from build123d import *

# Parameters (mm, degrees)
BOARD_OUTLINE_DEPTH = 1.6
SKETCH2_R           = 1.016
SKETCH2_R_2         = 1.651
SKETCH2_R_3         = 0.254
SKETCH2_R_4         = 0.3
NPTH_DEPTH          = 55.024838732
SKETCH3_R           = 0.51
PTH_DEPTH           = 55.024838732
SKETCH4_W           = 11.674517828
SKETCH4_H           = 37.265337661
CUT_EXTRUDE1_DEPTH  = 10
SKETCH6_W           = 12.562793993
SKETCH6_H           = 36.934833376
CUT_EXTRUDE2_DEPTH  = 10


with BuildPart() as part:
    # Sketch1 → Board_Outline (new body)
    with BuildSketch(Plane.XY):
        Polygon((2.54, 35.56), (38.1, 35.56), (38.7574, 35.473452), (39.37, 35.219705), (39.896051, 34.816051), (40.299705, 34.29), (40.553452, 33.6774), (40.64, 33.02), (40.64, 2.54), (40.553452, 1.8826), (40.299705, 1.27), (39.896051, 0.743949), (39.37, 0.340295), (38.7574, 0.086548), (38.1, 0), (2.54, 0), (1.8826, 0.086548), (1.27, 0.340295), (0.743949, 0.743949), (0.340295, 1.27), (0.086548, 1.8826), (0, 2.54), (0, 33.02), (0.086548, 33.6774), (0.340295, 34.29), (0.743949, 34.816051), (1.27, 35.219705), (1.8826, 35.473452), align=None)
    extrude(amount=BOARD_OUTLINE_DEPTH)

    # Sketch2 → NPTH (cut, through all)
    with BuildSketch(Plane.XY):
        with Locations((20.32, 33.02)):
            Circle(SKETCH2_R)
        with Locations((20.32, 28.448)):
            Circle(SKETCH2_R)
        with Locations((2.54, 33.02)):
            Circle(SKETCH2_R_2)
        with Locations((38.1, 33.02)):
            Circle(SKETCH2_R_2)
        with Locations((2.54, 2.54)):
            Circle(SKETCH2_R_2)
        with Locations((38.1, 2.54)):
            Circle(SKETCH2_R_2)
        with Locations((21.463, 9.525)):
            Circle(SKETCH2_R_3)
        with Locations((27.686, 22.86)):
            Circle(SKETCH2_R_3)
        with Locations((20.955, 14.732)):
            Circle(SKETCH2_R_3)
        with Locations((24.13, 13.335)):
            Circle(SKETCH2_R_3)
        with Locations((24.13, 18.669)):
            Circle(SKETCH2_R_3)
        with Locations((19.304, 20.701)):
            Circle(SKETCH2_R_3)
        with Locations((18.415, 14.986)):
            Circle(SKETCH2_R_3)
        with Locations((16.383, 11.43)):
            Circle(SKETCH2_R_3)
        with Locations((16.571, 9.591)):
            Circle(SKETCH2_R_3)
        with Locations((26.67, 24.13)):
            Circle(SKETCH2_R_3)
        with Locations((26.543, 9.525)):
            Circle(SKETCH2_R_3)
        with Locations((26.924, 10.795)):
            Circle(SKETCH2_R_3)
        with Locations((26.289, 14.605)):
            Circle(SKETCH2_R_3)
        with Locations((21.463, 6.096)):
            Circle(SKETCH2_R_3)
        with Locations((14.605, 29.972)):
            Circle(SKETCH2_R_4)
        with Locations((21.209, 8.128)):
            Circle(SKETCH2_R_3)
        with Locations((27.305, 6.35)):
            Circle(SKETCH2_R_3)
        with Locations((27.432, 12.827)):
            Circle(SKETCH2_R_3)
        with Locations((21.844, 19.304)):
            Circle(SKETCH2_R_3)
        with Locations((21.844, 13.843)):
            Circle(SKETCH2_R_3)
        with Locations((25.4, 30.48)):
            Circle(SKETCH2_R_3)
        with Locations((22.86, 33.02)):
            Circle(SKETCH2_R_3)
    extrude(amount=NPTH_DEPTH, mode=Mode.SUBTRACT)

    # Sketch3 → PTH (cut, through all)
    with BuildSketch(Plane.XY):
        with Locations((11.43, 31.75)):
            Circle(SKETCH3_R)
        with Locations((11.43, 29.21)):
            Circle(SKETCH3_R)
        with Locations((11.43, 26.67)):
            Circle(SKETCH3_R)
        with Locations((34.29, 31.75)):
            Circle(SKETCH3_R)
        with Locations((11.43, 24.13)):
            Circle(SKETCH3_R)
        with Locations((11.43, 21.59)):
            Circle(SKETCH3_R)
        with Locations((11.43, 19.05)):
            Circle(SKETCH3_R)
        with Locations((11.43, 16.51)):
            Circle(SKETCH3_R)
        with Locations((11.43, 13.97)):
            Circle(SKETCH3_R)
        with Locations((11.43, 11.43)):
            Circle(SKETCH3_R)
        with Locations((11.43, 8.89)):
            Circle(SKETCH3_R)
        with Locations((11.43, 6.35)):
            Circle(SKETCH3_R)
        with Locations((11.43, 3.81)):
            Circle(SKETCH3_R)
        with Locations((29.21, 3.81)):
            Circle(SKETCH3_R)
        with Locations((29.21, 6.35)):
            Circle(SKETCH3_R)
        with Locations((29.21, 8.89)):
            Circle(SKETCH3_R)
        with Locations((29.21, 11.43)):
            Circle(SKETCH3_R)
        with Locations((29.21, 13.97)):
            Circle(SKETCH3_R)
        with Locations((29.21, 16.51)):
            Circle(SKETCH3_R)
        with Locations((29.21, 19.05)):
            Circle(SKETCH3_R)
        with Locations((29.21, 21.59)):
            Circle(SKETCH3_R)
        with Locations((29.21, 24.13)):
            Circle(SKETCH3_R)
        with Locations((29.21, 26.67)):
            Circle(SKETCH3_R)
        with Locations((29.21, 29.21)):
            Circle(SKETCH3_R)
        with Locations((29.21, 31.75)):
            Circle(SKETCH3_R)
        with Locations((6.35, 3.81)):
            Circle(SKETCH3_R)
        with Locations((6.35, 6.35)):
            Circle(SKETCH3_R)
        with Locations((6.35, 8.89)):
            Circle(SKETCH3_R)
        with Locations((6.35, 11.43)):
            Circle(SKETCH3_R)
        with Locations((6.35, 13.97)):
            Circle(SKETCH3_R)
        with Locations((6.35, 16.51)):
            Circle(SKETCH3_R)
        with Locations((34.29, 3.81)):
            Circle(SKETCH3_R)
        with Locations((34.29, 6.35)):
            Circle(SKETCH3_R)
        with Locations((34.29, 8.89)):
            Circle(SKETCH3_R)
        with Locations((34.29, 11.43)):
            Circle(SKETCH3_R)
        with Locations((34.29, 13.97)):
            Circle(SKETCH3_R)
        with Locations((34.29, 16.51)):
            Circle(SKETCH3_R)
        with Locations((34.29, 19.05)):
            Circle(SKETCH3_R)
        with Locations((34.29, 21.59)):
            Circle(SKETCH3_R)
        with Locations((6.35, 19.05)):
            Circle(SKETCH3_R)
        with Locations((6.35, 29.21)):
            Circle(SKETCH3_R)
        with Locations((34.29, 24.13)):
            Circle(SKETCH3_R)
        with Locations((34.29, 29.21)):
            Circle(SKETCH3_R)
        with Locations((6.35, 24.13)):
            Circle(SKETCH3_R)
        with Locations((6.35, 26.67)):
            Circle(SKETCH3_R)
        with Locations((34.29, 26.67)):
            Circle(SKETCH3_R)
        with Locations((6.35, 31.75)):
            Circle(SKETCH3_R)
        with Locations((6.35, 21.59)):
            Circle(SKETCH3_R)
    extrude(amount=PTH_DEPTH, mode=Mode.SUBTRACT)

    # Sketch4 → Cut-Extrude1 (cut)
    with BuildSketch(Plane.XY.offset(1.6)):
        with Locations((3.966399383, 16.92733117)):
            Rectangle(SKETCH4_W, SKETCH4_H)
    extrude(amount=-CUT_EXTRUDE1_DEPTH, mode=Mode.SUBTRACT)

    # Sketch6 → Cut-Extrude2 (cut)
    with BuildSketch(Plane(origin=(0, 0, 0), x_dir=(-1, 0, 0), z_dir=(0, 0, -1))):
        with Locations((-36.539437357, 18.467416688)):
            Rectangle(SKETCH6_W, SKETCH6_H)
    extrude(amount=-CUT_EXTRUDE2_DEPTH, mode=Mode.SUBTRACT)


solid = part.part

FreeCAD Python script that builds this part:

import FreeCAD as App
import Part
import Sketcher

V = App.Vector
Q = App.Units.Quantity

doc = App.newDocument("Part")
params = doc.addObject("Spreadsheet::Sheet", "Params")
for row, (alias, value) in enumerate([
    ("sketch1_width", "1.4 in"),
    ("sketch1_width2", "1.4 in"),
    ("sketch1_height", "1.2 in"),
    ("sketch1_height2", "1.2 in"),
    ("pad1_length", "1.6 mm"),
    ("sketch2_diameter", "0.08 in"),
    ("sketch2_diameter2", "0.13 in"),
    ("sketch2_diameter3", "0.02 in"),
    ("pocket3_length", "10 mm"),
    ("pocket4_length", "10 mm"),
], start=1):
    params.set(f"A{row}", alias)
    params.set(f"B{row}", "=" + value)
    params.setAlias(f"B{row}", alias)

body = doc.addObject("PartDesign::Body", "Body")

sketch1 = body.newObject("Sketcher::SketchObject", "Sketch")
sketch1.AttachmentSupport = (doc.getObject("XY_Plane"), [""])
sketch1.MapMode = "FlatFace"
sketch1.addGeometry([
    Part.LineSegment(V(38.1, 35.56, 0), V(2.54, 35.56, 0)),
    Part.LineSegment(V(2.54, 35.56, 0), V(1.8826, 35.473452, 0)),
    Part.LineSegment(V(1.8826, 35.473452, 0), V(1.27, 35.219705, 0)),
    Part.LineSegment(V(1.27, 35.219705, 0), V(0.743949, 34.816051, 0)),
    Part.LineSegment(V(0.743949, 34.816051, 0), V(0.340295, 34.29, 0)),
    Part.LineSegment(V(0.340295, 34.29, 0), V(0.086548, 33.6774, 0)),
    Part.LineSegment(V(0.086548, 33.6774, 0), V(0, 33.02, 0)),
    Part.LineSegment(V(0, 33.02, 0), V(0, 2.54, 0)),
    Part.LineSegment(V(0, 2.54, 0), V(0.086548, 1.8826, 0)),
    Part.LineSegment(V(0.086548, 1.8826, 0), V(0.340295, 1.27, 0)),
    Part.LineSegment(V(0.340295, 1.27, 0), V(0.743949, 0.743949, 0)),
    Part.LineSegment(V(0.743949, 0.743949, 0), V(1.27, 0.340295, 0)),
    Part.LineSegment(V(1.27, 0.340295, 0), V(1.8826, 0.086548, 0)),
    Part.LineSegment(V(1.8826, 0.086548, 0), V(2.54, 0, 0)),
    Part.LineSegment(V(2.54, 0, 0), V(38.1, 0, 0)),
    Part.LineSegment(V(38.1, 0, 0), V(38.7574, 0.086548, 0)),
    Part.LineSegment(V(38.7574, 0.086548, 0), V(39.37, 0.340295, 0)),
    Part.LineSegment(V(39.37, 0.340295, 0), V(39.896051, 0.743949, 0)),
    Part.LineSegment(V(39.896051, 0.743949, 0), V(40.299705, 1.27, 0)),
    Part.LineSegment(V(40.299705, 1.27, 0), V(40.553452, 1.8826, 0)),
    Part.LineSegment(V(40.553452, 1.8826, 0), V(40.64, 2.54, 0)),
    Part.LineSegment(V(40.64, 2.54, 0), V(40.64, 33.02, 0)),
    Part.LineSegment(V(40.64, 33.02, 0), V(40.553452, 33.6774, 0)),
    Part.LineSegment(V(40.553452, 33.6774, 0), V(40.299705, 34.29, 0)),
    Part.LineSegment(V(40.299705, 34.29, 0), V(39.896051, 34.816051, 0)),
    Part.LineSegment(V(39.896051, 34.816051, 0), V(39.37, 35.219705, 0)),
    Part.LineSegment(V(39.37, 35.219705, 0), V(38.7574, 35.473452, 0)),
    Part.LineSegment(V(38.7574, 35.473452, 0), V(38.1, 35.56, 0)),
], False)
sketch1.addConstraint([
    Sketcher.Constraint("Coincident", 0, 2, 1, 1),
    Sketcher.Constraint("Coincident", 1, 2, 2, 1),
    Sketcher.Constraint("Coincident", 2, 2, 3, 1),
    Sketcher.Constraint("Coincident", 3, 2, 4, 1),
    Sketcher.Constraint("Coincident", 4, 2, 5, 1),
    Sketcher.Constraint("Coincident", 5, 2, 6, 1),
    Sketcher.Constraint("Coincident", 6, 2, 7, 1),
    Sketcher.Constraint("Coincident", 7, 2, 8, 1),
    Sketcher.Constraint("Coincident", 8, 2, 9, 1),
    Sketcher.Constraint("Coincident", 9, 2, 10, 1),
    Sketcher.Constraint("Coincident", 10, 2, 11, 1),
    Sketcher.Constraint("Coincident", 11, 2, 12, 1),
    Sketcher.Constraint("Coincident", 12, 2, 13, 1),
    Sketcher.Constraint("Coincident", 13, 2, 14, 1),
    Sketcher.Constraint("Coincident", 14, 2, 15, 1),
    Sketcher.Constraint("Coincident", 15, 2, 16, 1),
    Sketcher.Constraint("Coincident", 16, 2, 17, 1),
    Sketcher.Constraint("Coincident", 17, 2, 18, 1),
    Sketcher.Constraint("Coincident", 18, 2, 19, 1),
    Sketcher.Constraint("Coincident", 19, 2, 20, 1),
    Sketcher.Constraint("Coincident", 20, 2, 21, 1),
    Sketcher.Constraint("Coincident", 21, 2, 22, 1),
    Sketcher.Constraint("Coincident", 22, 2, 23, 1),
    Sketcher.Constraint("Coincident", 23, 2, 24, 1),
    Sketcher.Constraint("Coincident", 24, 2, 25, 1),
    Sketcher.Constraint("Coincident", 25, 2, 26, 1),
    Sketcher.Constraint("Coincident", 26, 2, 27, 1),
    Sketcher.Constraint("Coincident", 27, 2, 0, 1),
    Sketcher.Constraint("Horizontal", 0),
    Sketcher.Constraint("Vertical", 7),
    Sketcher.Constraint("Horizontal", 14),
    Sketcher.Constraint("Vertical", 21),
    Sketcher.Constraint("PointOnObject", 6, 2, -2),
    Sketcher.Constraint("PointOnObject", 13, 2, -1),
    Sketcher.Constraint("DistanceX", 0, 2, 0, 1, Q("1.4 in")),
    Sketcher.Constraint("DistanceX", 14, 1, 14, 2, Q("1.4 in")),
    Sketcher.Constraint("DistanceY", 7, 2, 7, 1, Q("1.2 in")),
    Sketcher.Constraint("DistanceY", 21, 1, 21, 2, Q("1.2 in")),
    Sketcher.Constraint("DistanceX", -1, 1, 0, 2, Q("0.1 in")),
    Sketcher.Constraint("DistanceY", -1, 1, 0, 2, Q("1.4 in")),
    Sketcher.Constraint("DistanceY", -1, 1, 6, 2, Q("1.3 in")),
    Sketcher.Constraint("DistanceX", -1, 1, 13, 2, Q("0.1 in")),
    Sketcher.Constraint("DistanceX", -1, 1, 20, 2, Q("1.6 in")),
    Sketcher.Constraint("DistanceY", -1, 1, 20, 2, Q("0.1 in")),
    Sketcher.Constraint("DistanceY", 9, 2, 4, 2, Q("1.3 in")),
    Sketcher.Constraint("DistanceX", 11, 2, 16, 2, Q("1.5 in")),
    Sketcher.Constraint("DistanceY", 18, 2, 23, 2, Q("1.3 in")),
    Sketcher.Constraint("DistanceX", -1, 1, 2, 2, Q("0.05 in")),
    Sketcher.Constraint("DistanceY", -1, 1, 4, 2, Q("1.35 in")),
    Sketcher.Constraint("DistanceX", -1, 1, 11, 2, Q("0.05 in")),
    Sketcher.Constraint("DistanceY", -1, 1, 18, 2, Q("0.05 in")),
    Sketcher.Constraint("DistanceX", -1, 1, 25, 2, Q("1.55 in")),
    Sketcher.Constraint("DistanceX", -1, 1, 1, 2, 1.8826),
    Sketcher.Constraint("DistanceY", -1, 1, 5, 2, 33.6774),
    Sketcher.Constraint("DistanceY", -1, 1, 8, 2, 1.8826),
    Sketcher.Constraint("DistanceX", -1, 1, 12, 2, 1.8826),
    Sketcher.Constraint("DistanceX", -1, 1, 15, 2, 38.7574),
    Sketcher.Constraint("DistanceY", -1, 1, 19, 2, 1.8826),
    Sketcher.Constraint("DistanceY", -1, 1, 22, 2, 33.6774),
    Sketcher.Constraint("DistanceX", -1, 1, 26, 2, 38.7574),
    Sketcher.Constraint("DistanceY", 3, 2, 1, 2, 0.657401),
    Sketcher.Constraint("DistanceX", 5, 2, 3, 2, 0.657401),
    Sketcher.Constraint("DistanceX", 8, 2, 3, 2, 0.657401),
    Sketcher.Constraint("DistanceX", 8, 2, 10, 2, 0.657401),
    Sketcher.Constraint("DistanceY", 12, 2, 10, 2, 0.657401),
    Sketcher.Constraint("DistanceY", 15, 2, 10, 2, 0.657401),
    Sketcher.Constraint("DistanceY", 15, 2, 17, 2, 0.657401),
    Sketcher.Constraint("DistanceX", 17, 2, 19, 2, 0.657401),
    Sketcher.Constraint("DistanceX", 17, 2, 22, 2, 0.657401),
    Sketcher.Constraint("DistanceX", 24, 2, 22, 2, 0.657401),
    Sketcher.Constraint("DistanceY", 24, 2, 26, 2, 0.657401),
    Sketcher.Constraint("DistanceX", -1, 1, 3, 2, 0.743949),
    Sketcher.Constraint("DistanceY", -1, 1, 3, 2, 34.816051),
    Sketcher.Constraint("DistanceY", -1, 1, 10, 2, 0.743949),
    Sketcher.Constraint("DistanceX", -1, 1, 17, 2, 39.896051),
    Sketcher.Constraint("DistanceY", -1, 1, 24, 2, 34.816051),
    Sketcher.Constraint("Distance", 2, 0.663073),
    Sketcher.Constraint("Distance", 4, 0.663073),
    Sketcher.Constraint("Distance", 9, 0.663073),
    Sketcher.Constraint("Distance", 11, 0.663073),
    Sketcher.Constraint("Distance", 16, 0.663073),
    Sketcher.Constraint("Distance", 18, 0.663073),
    Sketcher.Constraint("Distance", 23, 0.663073),
    Sketcher.Constraint("Distance", 25, 0.663073),
])
sketch1.setExpression("Constraints[34]", "Params.sketch1_width")
sketch1.setExpression("Constraints[35]", "Params.sketch1_width2")
sketch1.setExpression("Constraints[36]", "Params.sketch1_height")
sketch1.setExpression("Constraints[37]", "Params.sketch1_height2")
pad1 = body.newObject("PartDesign::Pad", "Pad")
pad1.Profile = sketch1
pad1.setExpression("Length", "Params.pad1_length")

sketch2 = body.newObject("Sketcher::SketchObject", "Sketch001")
sketch2.AttachmentSupport = (doc.getObject("XY_Plane"), [""])
sketch2.MapMode = "FlatFace"
sketch2.addGeometry([
    Part.Circle(V(20.32, 33.02, 0), V(0, 0, 1), 1.02),
    Part.Circle(V(20.32, 28.45, 0), V(0, 0, 1), 1.02),
    Part.Circle(V(2.54, 33.02, 0), V(0, 0, 1), 1.65),
    Part.Circle(V(38.1, 33.02, 0), V(0, 0, 1), 1.65),
    Part.Circle(V(2.54, 2.54, 0), V(0, 0, 1), 1.65),
    Part.Circle(V(38.1, 2.54, 0), V(0, 0, 1), 1.65),
    Part.Circle(V(21.46, 9.53, 0), V(0, 0, 1), 0.25),
    Part.Circle(V(27.69, 22.86, 0), V(0, 0, 1), 0.25),
    Part.Circle(V(20.95, 14.73, 0), V(0, 0, 1), 0.25),
    Part.Circle(V(24.13, 13.34, 0), V(0, 0, 1), 0.25),
    Part.Circle(V(24.13, 18.67, 0), V(0, 0, 1), 0.25),
    Part.Circle(V(19.3, 20.7, 0), V(0, 0, 1), 0.25),
    Part.Circle(V(18.41, 14.99, 0), V(0, 0, 1), 0.25),
    Part.Circle(V(16.38, 11.43, 0), V(0, 0, 1), 0.25),
    Part.Circle(V(16.57, 9.59, 0), V(0, 0, 1), 0.25),
    Part.Circle(V(26.67, 24.13, 0), V(0, 0, 1), 0.25),
    Part.Circle(V(26.54, 9.53, 0), V(0, 0, 1), 0.25),
    Part.Circle(V(26.92, 10.79, 0), V(0, 0, 1), 0.25),
    Part.Circle(V(26.29, 14.61, 0), V(0, 0, 1), 0.25),
    Part.Circle(V(21.46, 6.1, 0), V(0, 0, 1), 0.25),
    Part.Circle(V(14.61, 29.97, 0), V(0, 0, 1), 0.3),
    Part.Circle(V(21.21, 8.13, 0), V(0, 0, 1), 0.25),
    Part.Circle(V(27.3, 6.35, 0), V(0, 0, 1), 0.25),
    Part.Circle(V(27.43, 12.83, 0), V(0, 0, 1), 0.25),
    Part.Circle(V(21.84, 19.3, 0), V(0, 0, 1), 0.25),
    Part.Circle(V(21.84, 13.84, 0), V(0, 0, 1), 0.25),
    Part.Circle(V(25.4, 30.48, 0), V(0, 0, 1), 0.25),
    Part.Circle(V(22.86, 33.02, 0), V(0, 0, 1), 0.25),
], False)
sketch2.addConstraint([
    Sketcher.Constraint("Equal", 0, 1),
    Sketcher.Constraint("Equal", 2, 3),
    Sketcher.Constraint("Equal", 3, 4),
    Sketcher.Constraint("Equal", 4, 5),
    Sketcher.Constraint("Equal", 6, 7),
    Sketcher.Constraint("Equal", 7, 8),
    Sketcher.Constraint("Equal", 8, 9),
    Sketcher.Constraint("Equal", 9, 10),
    Sketcher.Constraint("Equal", 10, 11),
    Sketcher.Constraint("Equal", 11, 12),
    Sketcher.Constraint("Equal", 12, 13),
    Sketcher.Constraint("Equal", 13, 14),
    Sketcher.Constraint("Equal", 14, 15),
    Sketcher.Constraint("Equal", 15, 16),
    Sketcher.Constraint("Equal", 16, 17),
    Sketcher.Constraint("Equal", 17, 18),
    Sketcher.Constraint("Equal", 18, 19),
    Sketcher.Constraint("Equal", 19, 21),
    Sketcher.Constraint("Equal", 21, 22),
    Sketcher.Constraint("Equal", 22, 23),
    Sketcher.Constraint("Equal", 23, 24),
    Sketcher.Constraint("Equal", 24, 25),
    Sketcher.Constraint("Equal", 25, 26),
    Sketcher.Constraint("Equal", 26, 27),
    Sketcher.Constraint("Horizontal", 0, 3, 2, 3),
    Sketcher.Constraint("Horizontal", 2, 3, 3, 3),
    Sketcher.Constraint("Horizontal", 4, 3, 5, 3),
    Sketcher.Constraint("Horizontal", 6, 3, 16, 3),
    Sketcher.Constraint("Horizontal", 3, 3, 27, 3),
    Sketcher.Constraint("Vertical", 0, 3, 1, 3),
    Sketcher.Constraint("Vertical", 2, 3, 4, 3),
    Sketcher.Constraint("Vertical", 3, 3, 5, 3),
    Sketcher.Constraint("Vertical", 9, 3, 10, 3),
    Sketcher.Constraint("Vertical", 6, 3, 19, 3),
    Sketcher.Constraint("Vertical", 24, 3, 25, 3),
    Sketcher.Constraint("Diameter", 0, Q("0.08 in")),
    Sketcher.Constraint("Diameter", 2, Q("0.13 in")),
    Sketcher.Constraint("Diameter", 6, Q("0.02 in")),
    Sketcher.Constraint("DistanceX", -1, 1, 26, 3, Q("1 in")),
    Sketcher.Constraint("DistanceX", -1, 1, 0, 3, Q("0.8 in")),
    Sketcher.Constraint("DistanceY", -1, 1, 0, 3, Q("1.3 in")),
    Sketcher.Constraint("DistanceX", -1, 1, 2, 3, Q("0.1 in")),
    Sketcher.Constraint("DistanceX", -1, 1, 3, 3, Q("1.5 in")),
    Sketcher.Constraint("DistanceY", -1, 1, 4, 3, Q("0.1 in")),
    Sketcher.Constraint("DistanceY", -1, 1, 7, 3, Q("0.9 in")),
    Sketcher.Constraint("DistanceY", -1, 1, 26, 3, Q("1.2 in")),
    Sketcher.Constraint("DistanceX", -1, 1, 27, 3, Q("0.9 in")),
    Sketcher.Constraint("DistanceX", 12, 3, 8, 3, Q("0.1 in")),
    Sketcher.Constraint("DistanceX", 13, 3, 6, 3, Q("0.2 in")),
    Sketcher.Constraint("DistanceX", 10, 3, 15, 3, Q("0.1 in")),
    Sketcher.Constraint("DistanceX", 6, 3, 16, 3, Q("0.2 in")),
    Sketcher.Constraint("DistanceY", 17, 3, 9, 3, Q("0.1 in")),
    Sketcher.Constraint("DistanceY", 16, 3, 18, 3, Q("0.2 in")),
    Sketcher.Constraint("DistanceX", 11, 3, 24, 3, Q("0.1 in")),
    Sketcher.Constraint("Diameter", 20, 0.6),
    Sketcher.Constraint("DistanceY", -1, 1, 1, 3, Q("1.12 in")),
    Sketcher.Constraint("DistanceX", -1, 1, 7, 3, Q("1.09 in")),
    Sketcher.Constraint("DistanceY", -1, 1, 8, 3, Q("0.58 in")),
    Sketcher.Constraint("DistanceX", -1, 1, 9, 3, Q("0.95 in")),
    Sketcher.Constraint("DistanceX", -1, 1, 11, 3, Q("0.76 in")),
    Sketcher.Constraint("DistanceY", -1, 1, 12, 3, Q("0.59 in")),
    Sketcher.Constraint("DistanceY", -1, 1, 13, 3, Q("0.45 in")),
    Sketcher.Constraint("DistanceY", -1, 1, 15, 3, Q("0.95 in")),
    Sketcher.Constraint("DistanceX", -1, 1, 17, 3, Q("1.06 in")),
    Sketcher.Constraint("DistanceY", -1, 1, 19, 3, Q("0.24 in")),
    Sketcher.Constraint("DistanceY", -1, 1, 20, 3, Q("1.18 in")),
    Sketcher.Constraint("DistanceY", -1, 1, 21, 3, Q("0.32 in")),
    Sketcher.Constraint("DistanceY", -1, 1, 22, 3, Q("0.25 in")),
    Sketcher.Constraint("DistanceX", -1, 1, 23, 3, Q("1.08 in")),
    Sketcher.Constraint("DistanceY", -1, 1, 24, 3, Q("0.76 in")),
    Sketcher.Constraint("DistanceX", 8, 3, 6, 3, Q("0.02 in")),
    Sketcher.Constraint("DistanceY", 6, 3, 9, 3, Q("0.15 in")),
    Sketcher.Constraint("DistanceY", 9, 3, 10, 3, Q("0.21 in")),
    Sketcher.Constraint("DistanceY", 10, 3, 11, 3, Q("0.08 in")),
    Sketcher.Constraint("DistanceX", 18, 3, 16, 3, Q("0.01 in")),
    Sketcher.Constraint("DistanceX", 21, 3, 6, 3, Q("0.01 in")),
    Sketcher.Constraint("DistanceX", 16, 3, 22, 3, Q("0.03 in")),
    Sketcher.Constraint("DistanceY", 17, 3, 23, 3, Q("0.08 in")),
    Sketcher.Constraint("DistanceY", 9, 3, 25, 3, Q("0.02 in")),
    Sketcher.Constraint("DistanceX", -1, 1, 6, 3, Q("0.845 in")),
    Sketcher.Constraint("DistanceY", -1, 1, 6, 3, Q("0.375 in")),
    Sketcher.Constraint("DistanceX", -1, 1, 20, 3, Q("0.575 in")),
    Sketcher.Constraint("DistanceX", -1, 1, 14, 3, 16.571),
    Sketcher.Constraint("DistanceY", -1, 1, 14, 3, 9.591),
])
sketch2.setExpression("Constraints[35]", "Params.sketch2_diameter")
sketch2.setExpression("Constraints[36]", "Params.sketch2_diameter2")
sketch2.setExpression("Constraints[37]", "Params.sketch2_diameter3")
pocket1 = body.newObject("PartDesign::Pocket", "Pocket")
pocket1.Profile = sketch2
pocket1.Type = "ThroughAll"
pocket1.Reversed = True

sketch3 = body.newObject("Sketcher::SketchObject", "Sketch002")
sketch3.AttachmentSupport = (doc.getObject("XY_Plane"), [""])
sketch3.MapMode = "FlatFace"
sketch3.addGeometry([
    Part.Circle(V(11.4, 31.8, 0), V(0, 0, 1), 0.5),
    Part.Circle(V(11.4, 29.2, 0), V(0, 0, 1), 0.5),
    Part.Circle(V(11.4, 26.7, 0), V(0, 0, 1), 0.5),
    Part.Circle(V(34.3, 31.8, 0), V(0, 0, 1), 0.5),
    Part.Circle(V(11.4, 24.1, 0), V(0, 0, 1), 0.5),
    Part.Circle(V(11.4, 21.6, 0), V(0, 0, 1), 0.5),
    Part.Circle(V(11.4, 19.1, 0), V(0, 0, 1), 0.5),
    Part.Circle(V(11.4, 16.5, 0), V(0, 0, 1), 0.5),
    Part.Circle(V(11.4, 14, 0), V(0, 0, 1), 0.5),
    Part.Circle(V(11.4, 11.4, 0), V(0, 0, 1), 0.5),
    Part.Circle(V(11.4, 8.9, 0), V(0, 0, 1), 0.5),
    Part.Circle(V(11.4, 6.3, 0), V(0, 0, 1), 0.5),
    Part.Circle(V(11.4, 3.8, 0), V(0, 0, 1), 0.5),
    Part.Circle(V(29.2, 3.8, 0), V(0, 0, 1), 0.5),
    Part.Circle(V(29.2, 6.3, 0), V(0, 0, 1), 0.5),
    Part.Circle(V(29.2, 8.9, 0), V(0, 0, 1), 0.5),
    Part.Circle(V(29.2, 11.4, 0), V(0, 0, 1), 0.5),
    Part.Circle(V(29.2, 14, 0), V(0, 0, 1), 0.5),
    Part.Circle(V(29.2, 16.5, 0), V(0, 0, 1), 0.5),
    Part.Circle(V(29.2, 19.1, 0), V(0, 0, 1), 0.5),
    Part.Circle(V(29.2, 21.6, 0), V(0, 0, 1), 0.5),
    Part.Circle(V(29.2, 24.1, 0), V(0, 0, 1), 0.5),
    Part.Circle(V(29.2, 26.7, 0), V(0, 0, 1), 0.5),
    Part.Circle(V(29.2, 29.2, 0), V(0, 0, 1), 0.5),
    Part.Circle(V(29.2, 31.8, 0), V(0, 0, 1), 0.5),
    Part.Circle(V(6.3, 3.8, 0), V(0, 0, 1), 0.5),
    Part.Circle(V(6.3, 6.3, 0), V(0, 0, 1), 0.5),
    Part.Circle(V(6.3, 8.9, 0), V(0, 0, 1), 0.5),
    Part.Circle(V(6.3, 11.4, 0), V(0, 0, 1), 0.5),
    Part.Circle(V(6.3, 14, 0), V(0, 0, 1), 0.5),
    Part.Circle(V(6.3, 16.5, 0), V(0, 0, 1), 0.5),
    Part.Circle(V(34.3, 3.8, 0), V(0, 0, 1), 0.5),
    Part.Circle(V(34.3, 6.3, 0), V(0, 0, 1), 0.5),
    Part.Circle(V(34.3, 8.9, 0), V(0, 0, 1), 0.5),
    Part.Circle(V(34.3, 11.4, 0), V(0, 0, 1), 0.5),
    Part.Circle(V(34.3, 14, 0), V(0, 0, 1), 0.5),
    Part.Circle(V(34.3, 16.5, 0), V(0, 0, 1), 0.5),
    Part.Circle(V(34.3, 19.1, 0), V(0, 0, 1), 0.5),
    Part.Circle(V(34.3, 21.6, 0), V(0, 0, 1), 0.5),
    Part.Circle(V(6.3, 19.1, 0), V(0, 0, 1), 0.5),
    Part.Circle(V(6.3, 29.2, 0), V(0, 0, 1), 0.5),
    Part.Circle(V(34.3, 24.1, 0), V(0, 0, 1), 0.5),
    Part.Circle(V(34.3, 29.2, 0), V(0, 0, 1), 0.5),
    Part.Circle(V(6.3, 24.1, 0), V(0, 0, 1), 0.5),
    Part.Circle(V(6.3, 26.7, 0), V(0, 0, 1), 0.5),
    Part.Circle(V(34.3, 26.7, 0), V(0, 0, 1), 0.5),
    Part.Circle(V(6.3, 31.8, 0), V(0, 0, 1), 0.5),
    Part.Circle(V(6.3, 21.6, 0), V(0, 0, 1), 0.5),
], False)
sketch3.addConstraint([
    Sketcher.Constraint("Equal", 0, 1),
    Sketcher.Constraint("Equal", 1, 2),
    Sketcher.Constraint("Equal", 2, 3),
    Sketcher.Constraint("Equal", 3, 4),
    Sketcher.Constraint("Equal", 4, 5),
    Sketcher.Constraint("Equal", 5, 6),
    Sketcher.Constraint("Equal", 6, 7),
    Sketcher.Constraint("Equal", 7, 8),
    Sketcher.Constraint("Equal", 8, 9),
    Sketcher.Constraint("Equal", 9, 10),
    Sketcher.Constraint("Equal", 10, 11),
    Sketcher.Constraint("Equal", 11, 12),
    Sketcher.Constraint("Equal", 12, 13),
    Sketcher.Constraint("Equal", 13, 14),
    Sketcher.Constraint("Equal", 14, 15),
    Sketcher.Constraint("Equal", 15, 16),
    Sketcher.Constraint("Equal", 16, 17),
    Sketcher.Constraint("Equal", 17, 18),
    Sketcher.Constraint("Equal", 18, 19),
    Sketcher.Constraint("Equal", 19, 20),
    Sketcher.Constraint("Equal", 20, 21),
    Sketcher.Constraint("Equal", 21, 22),
    Sketcher.Constraint("Equal", 22, 23),
    Sketcher.Constraint("Equal", 23, 24),
    Sketcher.Constraint("Equal", 24, 25),
    Sketcher.Constraint("Equal", 25, 26),
    Sketcher.Constraint("Equal", 26, 27),
    Sketcher.Constraint("Equal", 27, 28),
    Sketcher.Constraint("Equal", 28, 29),
    Sketcher.Constraint("Equal", 29, 30),
    Sketcher.Constraint("Equal", 30, 31),
    Sketcher.Constraint("Equal", 31, 32),
    Sketcher.Constraint("Equal", 32, 33),
    Sketcher.Constraint("Equal", 33, 34),
    Sketcher.Constraint("Equal", 34, 35),
    Sketcher.Constraint("Equal", 35, 36),
    Sketcher.Constraint("Equal", 36, 37),
    Sketcher.Constraint("Equal", 37, 38),
    Sketcher.Constraint("Equal", 38, 39),
    Sketcher.Constraint("Equal", 39, 40),
    Sketcher.Constraint("Equal", 40, 41),
    Sketcher.Constraint("Equal", 41, 42),
    Sketcher.Constraint("Equal", 42, 43),
    Sketcher.Constraint("Equal", 43, 44),
    Sketcher.Constraint("Equal", 44, 45),
    Sketcher.Constraint("Equal", 45, 46),
    Sketcher.Constraint("Equal", 46, 47),
    Sketcher.Constraint("Horizontal", 0, 3, 3, 3),
    Sketcher.Constraint("Horizontal", 12, 3, 13, 3),
    Sketcher.Constraint("Horizontal", 11, 3, 14, 3),
    Sketcher.Constraint("Horizontal", 10, 3, 15, 3),
    Sketcher.Constraint("Horizontal", 9, 3, 16, 3),
    Sketcher.Constraint("Horizontal", 8, 3, 17, 3),
    Sketcher.Constraint("Horizontal", 7, 3, 18, 3),
    Sketcher.Constraint("Horizontal", 6, 3, 19, 3),
    Sketcher.Constraint("Horizontal", 5, 3, 20, 3),
    Sketcher.Constraint("Horizontal", 4, 3, 21, 3),
    Sketcher.Constraint("Horizontal", 2, 3, 22, 3),
    Sketcher.Constraint("Horizontal", 1, 3, 23, 3),
    Sketcher.Constraint("Horizontal", 3, 3, 24, 3),
    Sketcher.Constraint("Horizontal", 13, 3, 25, 3),
    Sketcher.Constraint("Horizontal", 14, 3, 26, 3),
    Sketcher.Constraint("Horizontal", 15, 3, 27, 3),
    Sketcher.Constraint("Horizontal", 16, 3, 28, 3),
    Sketcher.Constraint("Horizontal", 17, 3, 29, 3),
    Sketcher.Constraint("Horizontal", 18, 3, 30, 3),
    Sketcher.Constraint("Horizontal", 25, 3, 31, 3),
    Sketcher.Constraint("Horizontal", 26, 3, 32, 3),
    Sketcher.Constraint("Horizontal", 27, 3, 33, 3),
    Sketcher.Constraint("Horizontal", 28, 3, 34, 3),
    Sketcher.Constraint("Horizontal", 29, 3, 35, 3),
    Sketcher.Constraint("Horizontal", 30, 3, 36, 3),
    Sketcher.Constraint("Horizontal", 19, 3, 37, 3),
    Sketcher.Constraint("Horizontal", 20, 3, 38, 3),
    Sketcher.Constraint("Horizontal", 37, 3, 39, 3),
    Sketcher.Constraint("Horizontal", 23, 3, 40, 3),
    Sketcher.Constraint("Horizontal", 21, 3, 41, 3),
    Sketcher.Constraint("Horizontal", 40, 3, 42, 3),
    Sketcher.Constraint("Horizontal", 41, 3, 43, 3),
    Sketcher.Constraint("Horizontal", 22, 3, 44, 3),
    Sketcher.Constraint("Horizontal", 44, 3, 45, 3),
    Sketcher.Constraint("Horizontal", 24, 3, 46, 3),
    Sketcher.Constraint("Horizontal", 38, 3, 47, 3),
    Sketcher.Constraint("Vertical", 0, 3, 1, 3),
    Sketcher.Constraint("Vertical", 1, 3, 2, 3),
    Sketcher.Constraint("Vertical", 2, 3, 4, 3),
    Sketcher.Constraint("Vertical", 4, 3, 5, 3),
    Sketcher.Constraint("Vertical", 5, 3, 6, 3),
    Sketcher.Constraint("Vertical", 6, 3, 7, 3),
    Sketcher.Constraint("Vertical", 7, 3, 8, 3),
    Sketcher.Constraint("Vertical", 8, 3, 9, 3),
    Sketcher.Constraint("Vertical", 9, 3, 10, 3),
    Sketcher.Constraint("Vertical", 10, 3, 11, 3),
    Sketcher.Constraint("Vertical", 11, 3, 12, 3),
    Sketcher.Constraint("Vertical", 13, 3, 14, 3),
    Sketcher.Constraint("Vertical", 14, 3, 15, 3),
    Sketcher.Constraint("Vertical", 15, 3, 16, 3),
    Sketcher.Constraint("Vertical", 16, 3, 17, 3),
    Sketcher.Constraint("Vertical", 17, 3, 18, 3),
    Sketcher.Constraint("Vertical", 18, 3, 19, 3),
    Sketcher.Constraint("Vertical", 19, 3, 20, 3),
    Sketcher.Constraint("Vertical", 20, 3, 21, 3),
    Sketcher.Constraint("Vertical", 21, 3, 22, 3),
    Sketcher.Constraint("Vertical", 22, 3, 23, 3),
    Sketcher.Constraint("Vertical", 23, 3, 24, 3),
    Sketcher.Constraint("Vertical", 25, 3, 26, 3),
    Sketcher.Constraint("Vertical", 26, 3, 27, 3),
    Sketcher.Constraint("Vertical", 27, 3, 28, 3),
    Sketcher.Constraint("Vertical", 28, 3, 29, 3),
    Sketcher.Constraint("Vertical", 29, 3, 30, 3),
    Sketcher.Constraint("Vertical", 3, 3, 31, 3),
    Sketcher.Constraint("Vertical", 31, 3, 32, 3),
    Sketcher.Constraint("Vertical", 32, 3, 33, 3),
    Sketcher.Constraint("Vertical", 33, 3, 34, 3),
    Sketcher.Constraint("Vertical", 34, 3, 35, 3),
    Sketcher.Constraint("Vertical", 35, 3, 36, 3),
    Sketcher.Constraint("Vertical", 36, 3, 37, 3),
    Sketcher.Constraint("Vertical", 37, 3, 38, 3),
    Sketcher.Constraint("Vertical", 30, 3, 39, 3),
    Sketcher.Constraint("Vertical", 39, 3, 40, 3),
    Sketcher.Constraint("Vertical", 38, 3, 41, 3),
    Sketcher.Constraint("Vertical", 41, 3, 42, 3),
    Sketcher.Constraint("Vertical", 40, 3, 43, 3),
    Sketcher.Constraint("Vertical", 43, 3, 44, 3),
    Sketcher.Constraint("Vertical", 42, 3, 45, 3),
    Sketcher.Constraint("Vertical", 44, 3, 46, 3),
    Sketcher.Constraint("Vertical", 46, 3, 47, 3),
    Sketcher.Constraint("DistanceY", 1, 3, 0, 3, Q("0.1 in")),
    Sketcher.Constraint("DistanceY", 2, 3, 1, 3, Q("0.1 in")),
    Sketcher.Constraint("DistanceX", 0, 3, 3, 3, Q("0.9 in")),
    Sketcher.Constraint("DistanceY", 4, 3, 2, 3, Q("0.1 in")),
    Sketcher.Constraint("DistanceY", 5, 3, 4, 3, Q("0.1 in")),
    Sketcher.Constraint("DistanceY", 6, 3, 5, 3, Q("0.1 in")),
    Sketcher.Constraint("DistanceY", 7, 3, 6, 3, Q("0.1 in")),
    Sketcher.Constraint("DistanceY", 8, 3, 7, 3, Q("0.1 in")),
    Sketcher.Constraint("DistanceY", 9, 3, 8, 3, Q("0.1 in")),
    Sketcher.Constraint("DistanceY", 10, 3, 9, 3, Q("0.1 in")),
    Sketcher.Constraint("DistanceY", 11, 3, 10, 3, Q("0.1 in")),
    Sketcher.Constraint("DistanceY", 12, 3, 11, 3, Q("0.1 in")),
    Sketcher.Constraint("DistanceX", 12, 3, 13, 3, Q("0.7 in")),
    Sketcher.Constraint("DistanceX", 25, 3, 12, 3, Q("0.2 in")),
    Sketcher.Constraint("Diameter", 0, 1.02),
    Sketcher.Constraint("DistanceX", -1, 1, 0, 3, Q("0.45 in")),
    Sketcher.Constraint("DistanceY", -1, 1, 0, 3, Q("1.25 in")),
])
pocket2 = body.newObject("PartDesign::Pocket", "Pocket001")
pocket2.Profile = sketch3
pocket2.Type = "ThroughAll"
pocket2.Reversed = True

sketch4 = body.newObject("Sketcher::SketchObject", "Sketch003")
sketch4.AttachmentSupport = (doc.getObject("XY_Plane"), [""])
sketch4.MapMode = "FlatFace"
sketch4.AttachmentOffset = App.Placement(V(0, 0, 1.6), App.Rotation())
sketch4.addGeometry([
    Part.LineSegment(V(-2, 36, 0), V(-2, -2, 0)),
    Part.LineSegment(V(-2, -2, 0), V(10, -2, 0)),
    Part.LineSegment(V(10, -2, 0), V(10, 36, 0)),
    Part.LineSegment(V(10, 36, 0), V(-2, 36, 0)),
], False)
sketch4.addConstraint([
    Sketcher.Constraint("Coincident", 0, 2, 1, 1),
    Sketcher.Constraint("Coincident", 1, 2, 2, 1),
    Sketcher.Constraint("Coincident", 2, 2, 3, 1),
    Sketcher.Constraint("Coincident", 3, 2, 0, 1),
    Sketcher.Constraint("Vertical", 0),
    Sketcher.Constraint("Horizontal", 1),
    Sketcher.Constraint("Vertical", 2),
    Sketcher.Constraint("Horizontal", 3),
    Sketcher.Constraint("DistanceY", -1, 1, 2, 2, Q("1.4 in")),
    Sketcher.Constraint("DistanceX", 1, 1, 1, 2, 11.674518),
    Sketcher.Constraint("DistanceY", 0, 2, 0, 1, 37.265338),
    Sketcher.Constraint("DistanceX", 0, 2, -1, 1, 1.87086),
])
pocket3 = body.newObject("PartDesign::Pocket", "Pocket002")
pocket3.Profile = sketch4
pocket3.setExpression("Length", "Params.pocket3_length")

sketch5 = body.newObject("Sketcher::SketchObject", "Sketch004")
sketch5.AttachmentSupport = (doc.getObject("XY_Plane"), [""])
sketch5.MapMode = "FlatFace"
sketch5.addGeometry([
    Part.LineSegment(V(43, 37, 0), V(43, 0, 0)),
    Part.LineSegment(V(43, 0, 0), V(30, 0, 0)),
    Part.LineSegment(V(30, 0, 0), V(30, 37, 0)),
    Part.LineSegment(V(30, 37, 0), V(43, 37, 0)),
], False)
sketch5.addConstraint([
    Sketcher.Constraint("Coincident", 0, 2, 1, 1),
    Sketcher.Constraint("Coincident", 1, 2, 2, 1),
    Sketcher.Constraint("Coincident", 2, 2, 3, 1),
    Sketcher.Constraint("Coincident", 3, 2, 0, 1),
    Sketcher.Constraint("Vertical", 0),
    Sketcher.Constraint("Horizontal", 1),
    Sketcher.Constraint("Vertical", 2),
    Sketcher.Constraint("Horizontal", 3),
    Sketcher.Constraint("PointOnObject", 0, 2, -1),
    Sketcher.Constraint("DistanceX", 1, 2, 1, 1, 12.562794),
    Sketcher.Constraint("DistanceY", 0, 2, 0, 1, 36.934833),
    Sketcher.Constraint("DistanceX", -1, 1, 1, 2, 30.25804),
])
pocket4 = body.newObject("PartDesign::Pocket", "Pocket003")
pocket4.Profile = sketch5
pocket4.setExpression("Length", "Params.pocket4_length")
pocket4.Reversed = True

doc.recompute()
